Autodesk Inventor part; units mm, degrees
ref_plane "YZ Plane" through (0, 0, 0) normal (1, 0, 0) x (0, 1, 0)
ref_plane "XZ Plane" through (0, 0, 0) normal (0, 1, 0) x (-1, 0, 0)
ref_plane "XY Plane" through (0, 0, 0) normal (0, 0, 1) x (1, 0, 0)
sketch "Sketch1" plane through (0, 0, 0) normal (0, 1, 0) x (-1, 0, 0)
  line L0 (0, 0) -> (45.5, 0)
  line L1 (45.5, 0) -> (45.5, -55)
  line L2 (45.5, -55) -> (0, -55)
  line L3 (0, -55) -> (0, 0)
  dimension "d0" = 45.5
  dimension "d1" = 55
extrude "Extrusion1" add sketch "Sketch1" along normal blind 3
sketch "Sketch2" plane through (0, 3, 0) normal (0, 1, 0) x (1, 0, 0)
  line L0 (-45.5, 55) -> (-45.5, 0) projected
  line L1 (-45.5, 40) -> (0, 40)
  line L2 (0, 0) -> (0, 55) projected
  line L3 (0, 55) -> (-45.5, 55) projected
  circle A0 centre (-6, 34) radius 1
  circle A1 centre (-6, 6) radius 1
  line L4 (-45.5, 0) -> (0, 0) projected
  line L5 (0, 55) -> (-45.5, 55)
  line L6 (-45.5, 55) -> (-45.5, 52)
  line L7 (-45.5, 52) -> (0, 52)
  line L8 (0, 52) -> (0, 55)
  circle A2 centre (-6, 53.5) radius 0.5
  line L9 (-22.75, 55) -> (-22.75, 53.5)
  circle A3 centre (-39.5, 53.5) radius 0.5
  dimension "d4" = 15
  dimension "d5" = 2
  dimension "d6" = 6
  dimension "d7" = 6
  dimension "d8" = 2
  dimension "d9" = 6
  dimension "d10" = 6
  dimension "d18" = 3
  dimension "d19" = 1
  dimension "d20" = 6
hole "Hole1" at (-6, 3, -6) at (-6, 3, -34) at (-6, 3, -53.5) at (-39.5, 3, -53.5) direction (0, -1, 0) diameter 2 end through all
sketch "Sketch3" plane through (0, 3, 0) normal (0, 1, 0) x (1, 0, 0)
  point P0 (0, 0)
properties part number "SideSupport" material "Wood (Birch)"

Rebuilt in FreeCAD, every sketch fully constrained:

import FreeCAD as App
import Part
import Sketcher

doc = App.newDocument("Part")
body = doc.addObject("PartDesign::Body", "Body")

# Sketch on XZ plane
sketch1 = body.newObject("Sketcher::SketchObject", "Sketch")
sketch1.AttachmentSupport = (doc.getObject("XZ_Plane"), [""])
sketch1.MapMode = "FlatFace"
sketch1.addGeometry(Part.LineSegment(App.Vector(-46, 0, 0), App.Vector(0, 0, 0)), False)
sketch1.addGeometry(Part.LineSegment(App.Vector(0, 0, 0), App.Vector(0, -55, 0)), False)
sketch1.addGeometry(Part.LineSegment(App.Vector(0, -55, 0), App.Vector(-46, -55, 0)), False)
sketch1.addGeometry(Part.LineSegment(App.Vector(-46, -55, 0), App.Vector(-46, 0, 0)), False)
sketch1.addConstraint(Sketcher.Constraint("Coincident", 0, 2, 1, 1))
sketch1.addConstraint(Sketcher.Constraint("Coincident", 1, 2, 2, 1))
sketch1.addConstraint(Sketcher.Constraint("Coincident", 2, 2, 3, 1))
sketch1.addConstraint(Sketcher.Constraint("Coincident", 3, 2, 0, 1))
sketch1.addConstraint(Sketcher.Constraint("Horizontal", 0))
sketch1.addConstraint(Sketcher.Constraint("Vertical", 1))
sketch1.addConstraint(Sketcher.Constraint("Horizontal", 2))
sketch1.addConstraint(Sketcher.Constraint("Vertical", 3))
sketch1.addConstraint(Sketcher.Constraint("Coincident", 0, 2, -1, 1))
sketch1.addConstraint(Sketcher.Constraint("DistanceY", 1, 2, 1, 1, 55.0))
sketch1.addConstraint(Sketcher.Constraint("DistanceX", 0, 1, 0, 2, 45.5))
pad1 = body.newObject("PartDesign::Pad", "Pad")
pad1.Profile = sketch1
pad1.Length = 3
pad1.Reversed = True

# Sketch on XZ plane
sketch2 = body.newObject("Sketcher::SketchObject", "Sketch001")
sketch2.AttachmentSupport = (doc.getObject("XZ_Plane"), [""])
sketch2.MapMode = "FlatFace"
sketch2.AttachmentOffset = App.Placement(App.Vector(0, 0, -3), App.Rotation())
sketch2.addGeometry(Part.Circle(App.Vector(-6, -6, 0), App.Vector(0, 0, 1), 1), False)
sketch2.addGeometry(Part.Circle(App.Vector(-6, -34, 0), App.Vector(0, 0, 1), 1), False)
sketch2.addGeometry(Part.Circle(App.Vector(-6, -53.5, 0), App.Vector(0, 0, 1), 1), False)
sketch2.addGeometry(Part.Circle(App.Vector(-39.5, -53.5, 0), App.Vector(0, 0, 1), 1), False)
sketch2.addConstraint(Sketcher.Constraint("Equal", 0, 1))
sketch2.addConstraint(Sketcher.Constraint("Equal", 1, 2))
sketch2.addConstraint(Sketcher.Constraint("Equal", 2, 3))
sketch2.addConstraint(Sketcher.Constraint("Horizontal", 2, 3, 3, 3))
sketch2.addConstraint(Sketcher.Constraint("Vertical", 0, 3, 1, 3))
sketch2.addConstraint(Sketcher.Constraint("Vertical", 1, 3, 2, 3))
sketch2.addConstraint(Sketcher.Constraint("Diameter", 0, 2.0))
sketch2.addConstraint(Sketcher.Constraint("DistanceX", 0, 3, -1, 1, 6.0))
sketch2.addConstraint(Sketcher.Constraint("DistanceY", 0, 3, -1, 1, 6.0))
sketch2.addConstraint(Sketcher.Constraint("DistanceY", 1, 3, -1, 1, 34.0))
sketch2.addConstraint(Sketcher.Constraint("DistanceY", 2, 3, -1, 1, 53.5))
sketch2.addConstraint(Sketcher.Constraint("DistanceX", 3, 3, -1, 1, 39.5))
doc.recompute()
hole = body.newObject("PartDesign::Hole", "Hole")
hole.Profile = sketch2
hole.ThreadType = "None"
hole.Diameter = 2
hole.DepthType = "ThroughAll"
hole.Reversed = True

doc.recompute()
